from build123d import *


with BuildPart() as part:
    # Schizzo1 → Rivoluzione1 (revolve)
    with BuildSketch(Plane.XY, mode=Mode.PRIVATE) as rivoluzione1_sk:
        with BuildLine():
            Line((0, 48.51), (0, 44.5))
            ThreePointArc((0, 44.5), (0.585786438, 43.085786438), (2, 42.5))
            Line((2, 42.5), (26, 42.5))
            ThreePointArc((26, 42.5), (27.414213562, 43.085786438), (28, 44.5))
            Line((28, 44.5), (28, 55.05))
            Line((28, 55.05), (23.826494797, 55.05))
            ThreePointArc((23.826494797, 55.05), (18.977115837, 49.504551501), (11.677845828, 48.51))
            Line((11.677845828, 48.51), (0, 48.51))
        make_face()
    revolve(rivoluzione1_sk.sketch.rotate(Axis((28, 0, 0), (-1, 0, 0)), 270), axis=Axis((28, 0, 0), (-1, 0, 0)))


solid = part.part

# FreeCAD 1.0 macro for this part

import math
import FreeCAD as App
import Part
import Sketcher
Q = App.Units.Quantity

doc = App.newDocument("Part")
params = doc.addObject("Spreadsheet::Sheet", "Params")
for row, (alias, value) in enumerate([
    ("sketch1_radius", "2 mm"),
    ("sketch1_radius2", "10.5 mm"),
    ("sketch1_width", "24 mm"),
    ("sketch1_height", "4.01 mm"),
    ("sketch1_height2", "10.55 mm"),
    ("revolution_angle", "360 deg"),
], start=1):
    params.set(f"A{row}", alias)
    params.set(f"B{row}", "=" + value)
    params.setAlias(f"B{row}", alias)

body = doc.addObject("PartDesign::Body", "Body")

# Sketch on XY plane
sketch1 = doc.addObject("Sketcher::SketchObject", "Sketch")
body.addObject(sketch1)
sketch1.AttachmentSupport = (doc.XY_Plane, [""])
sketch1.MapMode = "FlatFace"
sketch1.addGeometry([
    Part.LineSegment(App.Vector(0, 48.5, 0), App.Vector(0, 44.5, 0)),  # 0
    Part.ArcOfCircle(Part.Circle(App.Vector(2, 44.5, 0), App.Vector(0, 0, 1), 2), math.radians(-180), math.radians(-90)),  # 1
    Part.LineSegment(App.Vector(2, 42.5, 0), App.Vector(26, 42.5, 0)),  # 2
    Part.ArcOfCircle(Part.Circle(App.Vector(26, 44.5, 0), App.Vector(0, 0, 1), 2), math.radians(-90), math.radians(0)),  # 3
    Part.LineSegment(App.Vector(28, 44.5, 0), App.Vector(28, 55, 0)),  # 4
    Part.LineSegment(App.Vector(28, 55, 0), App.Vector(23.8, 55, 0)),  # 5
    Part.ArcOfCircle(Part.Circle(App.Vector(14, 58.7, 0), App.Vector(0, 0, 1), 10.5), math.radians(-103), math.radians(-21)),  # 6
    Part.LineSegment(App.Vector(11.7, 48.5, 0), App.Vector(0, 48.5, 0)),  # 7
], False)
sketch1.addConstraint([
    Sketcher.Constraint("Tangent", 0, 2, 1, 1),
    Sketcher.Constraint("Tangent", 1, 2, 2, 1),
    Sketcher.Constraint("Tangent", 2, 2, 3, 1),
    Sketcher.Constraint("Tangent", 3, 2, 4, 1),
    Sketcher.Constraint("Coincident", 4, 2, 5, 1),
    Sketcher.Constraint("Coincident", 5, 2, 6, 2),
    Sketcher.Constraint("Coincident", 6, 1, 7, 1),
    Sketcher.Constraint("Coincident", 7, 2, 0, 1),
    Sketcher.Constraint("Vertical", 0),
    Sketcher.Constraint("Horizontal", 2),
    Sketcher.Constraint("Vertical", 4),
    Sketcher.Constraint("Horizontal", 5),
    Sketcher.Constraint("Horizontal", 7),
    Sketcher.Constraint("Equal", 1, 3),
    Sketcher.Constraint("PointOnObject", 0, 2, -2),
    Sketcher.Constraint("Radius", 1, Q("2 mm")),
    Sketcher.Constraint("Radius", 6, Q("10.5 mm")),
    Sketcher.Constraint("DistanceX", 2, 1, 2, 2, Q("24 mm")),
    Sketcher.Constraint("DistanceX", -1, 1, 6, 3, Q("14 mm")),
    Sketcher.Constraint("DistanceY", 0, 2, 0, 1, Q("4.01 mm")),
    Sketcher.Constraint("DistanceY", 4, 1, 4, 2, Q("10.55 mm")),
    Sketcher.Constraint("DistanceY", -1, 1, 1, 3, Q("44.5 mm")),
    Sketcher.Constraint("DistanceY", 4, 2, 6, 3, Q("3.7 mm")),
])
sketch1.setExpression("Constraints[15]", "Params.sketch1_radius")
sketch1.setExpression("Constraints[16]", "Params.sketch1_radius2")
sketch1.setExpression("Constraints[17]", "Params.sketch1_width")
sketch1.setExpression("Constraints[19]", "Params.sketch1_height")
sketch1.setExpression("Constraints[20]", "Params.sketch1_height2")
revolution = doc.addObject("PartDesign::Revolution", "Revolution")
body.addObject(revolution)
revolution.Profile = sketch1
revolution.ReferenceAxis = (sketch1, ["H_Axis"])
revolution.setExpression("Angle", "Params.revolution_angle")

doc.recompute()
